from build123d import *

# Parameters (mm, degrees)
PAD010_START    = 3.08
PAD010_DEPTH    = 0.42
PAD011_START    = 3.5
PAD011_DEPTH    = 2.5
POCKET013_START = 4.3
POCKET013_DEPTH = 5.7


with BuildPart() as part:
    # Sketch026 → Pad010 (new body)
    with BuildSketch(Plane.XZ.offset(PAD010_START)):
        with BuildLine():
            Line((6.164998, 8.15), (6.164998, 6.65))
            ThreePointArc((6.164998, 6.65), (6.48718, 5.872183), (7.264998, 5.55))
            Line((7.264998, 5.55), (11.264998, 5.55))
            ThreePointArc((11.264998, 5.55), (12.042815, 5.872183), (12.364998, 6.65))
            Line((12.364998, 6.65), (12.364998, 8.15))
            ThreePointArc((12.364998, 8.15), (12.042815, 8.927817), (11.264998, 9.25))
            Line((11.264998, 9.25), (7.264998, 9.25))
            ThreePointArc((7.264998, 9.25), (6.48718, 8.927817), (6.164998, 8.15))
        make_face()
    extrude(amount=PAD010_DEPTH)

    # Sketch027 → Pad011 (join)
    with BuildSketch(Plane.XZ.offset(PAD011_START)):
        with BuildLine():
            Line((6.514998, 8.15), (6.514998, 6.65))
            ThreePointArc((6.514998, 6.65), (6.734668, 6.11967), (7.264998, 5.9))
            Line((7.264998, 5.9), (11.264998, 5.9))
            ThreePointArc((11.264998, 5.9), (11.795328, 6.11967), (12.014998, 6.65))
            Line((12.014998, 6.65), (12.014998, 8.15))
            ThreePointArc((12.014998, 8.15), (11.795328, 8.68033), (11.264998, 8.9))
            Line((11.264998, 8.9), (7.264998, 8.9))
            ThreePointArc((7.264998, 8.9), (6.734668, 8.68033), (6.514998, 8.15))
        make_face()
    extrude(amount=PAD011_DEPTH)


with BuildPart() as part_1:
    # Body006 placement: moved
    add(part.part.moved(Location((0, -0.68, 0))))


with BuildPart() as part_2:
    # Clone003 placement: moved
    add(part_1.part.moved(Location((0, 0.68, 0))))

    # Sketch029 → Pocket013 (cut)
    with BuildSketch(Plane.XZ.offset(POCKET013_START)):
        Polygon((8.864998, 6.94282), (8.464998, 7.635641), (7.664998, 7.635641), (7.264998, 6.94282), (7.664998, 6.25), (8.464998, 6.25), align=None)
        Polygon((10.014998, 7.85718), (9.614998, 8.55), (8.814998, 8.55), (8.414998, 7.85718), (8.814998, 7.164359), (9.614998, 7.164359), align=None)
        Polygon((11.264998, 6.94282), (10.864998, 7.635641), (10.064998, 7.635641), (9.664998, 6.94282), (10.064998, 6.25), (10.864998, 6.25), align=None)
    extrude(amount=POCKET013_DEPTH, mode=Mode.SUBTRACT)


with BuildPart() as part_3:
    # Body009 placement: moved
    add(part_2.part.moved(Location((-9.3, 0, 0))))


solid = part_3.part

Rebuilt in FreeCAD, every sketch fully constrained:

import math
import FreeCAD as App
import Part
import Sketcher
from FreeCAD import Vector
Q = App.Units.Quantity


def add_polygon(sketch, points):
    """Adds a closed chain of lines whose ends are joined by coincident constraints."""
    first, n = sketch.GeometryCount, len(points)
    for a, b in zip(points, points[1:] + points[:1]):
        sketch.addGeometry(Part.LineSegment(App.Vector(*a, 0), App.Vector(*b, 0)), False)
    for i in range(n):
        sketch.addConstraint(Sketcher.Constraint("Coincident", first + i, 2, first + (i + 1) % n, 1))

doc = App.newDocument("Part")
body = doc.addObject("PartDesign::Body", "Body")

# Sketch on XZ plane
sketch1 = body.newObject("Sketcher::SketchObject", "Sketch")
sketch1.AttachmentSupport = (doc.getObject("XZ_Plane"), [""])
sketch1.MapMode = "FlatFace"
sketch1.AttachmentOffset = App.Placement(Vector(0, 0, 3.08), App.Rotation())
sketch1.addGeometry([
    Part.LineSegment(Vector(6.2, 8.2, 0), Vector(6.2, 6.7, 0)),  # 0
    Part.ArcOfCircle(Part.Circle(Vector(7.3, 6.6, 0), Vector(0, 0, 1), 1.1), math.radians(180), math.radians(270)),  # 1
    Part.LineSegment(Vector(7.3, 5.5, 0), Vector(11.3, 5.5, 0)),  # 2
    Part.ArcOfCircle(Part.Circle(Vector(11.3, 6.7, 0), Vector(0, 0, 1), 1.1), math.radians(-90), math.radians(0)),  # 3
    Part.LineSegment(Vector(12.4, 6.7, 0), Vector(12.4, 8.2, 0)),  # 4
    Part.ArcOfCircle(Part.Circle(Vector(11.3, 8.1, 0), Vector(0, 0, 1), 1.1), math.radians(0), math.radians(90)),  # 5
    Part.LineSegment(Vector(11.3, 9.2, 0), Vector(7.3, 9.2, 0)),  # 6
    Part.ArcOfCircle(Part.Circle(Vector(7.3, 8.2, 0), Vector(0, 0, 1), 1.1), math.radians(90), math.radians(180)),  # 7
], False)
sketch1.addConstraint([
    Sketcher.Constraint("Tangent", 0, 2, 1, 1),
    Sketcher.Constraint("Tangent", 1, 2, 2, 1),
    Sketcher.Constraint("Tangent", 2, 2, 3, 1),
    Sketcher.Constraint("Tangent", 3, 2, 4, 1),
    Sketcher.Constraint("Tangent", 4, 2, 5, 1),
    Sketcher.Constraint("Tangent", 5, 2, 6, 1),
    Sketcher.Constraint("Tangent", 6, 2, 7, 1),
    Sketcher.Constraint("Tangent", 7, 2, 0, 1),
    Sketcher.Constraint("Vertical", 0),
    Sketcher.Constraint("Horizontal", 2),
    Sketcher.Constraint("Vertical", 4),
    Sketcher.Constraint("Horizontal", 6),
    Sketcher.Constraint("Equal", 1, 3),
    Sketcher.Constraint("Equal", 3, 5),
    Sketcher.Constraint("Equal", 5, 7),
    Sketcher.Constraint("Radius", 1, Q("1.1 mm")),
    Sketcher.Constraint("DistanceX", 2, 1, 2, 2, Q("4 mm")),
    Sketcher.Constraint("DistanceY", 0, 2, 0, 1, Q("1.5 mm")),
    Sketcher.Constraint("DistanceY", -1, 1, 1, 3, Q("6.65 mm")),
    Sketcher.Constraint("DistanceX", -1, 1, 1, 2, Q("7.264998 mm")),
])
pad1 = body.newObject("PartDesign::Pad", "Pad")
pad1.Profile = sketch1
pad1.Length = 0.42

# Sketch on XZ plane
sketch2 = body.newObject("Sketcher::SketchObject", "Sketch001")
sketch2.AttachmentSupport = (doc.getObject("XZ_Plane"), [""])
sketch2.MapMode = "FlatFace"
sketch2.AttachmentOffset = App.Placement(Vector(0, 0, 3.5), App.Rotation())
sketch2.addGeometry([
    Part.LineSegment(Vector(6.5, 8.2, 0), Vector(6.5, 6.7, 0)),  # 0
    Part.ArcOfCircle(Part.Circle(Vector(7.3, 6.7, 0), Vector(0, 0, 1), 0.8), math.radians(-180), math.radians(-90)),  # 1
    Part.LineSegment(Vector(7.3, 5.9, 0), Vector(11.3, 5.9, 0)),  # 2
    Part.ArcOfCircle(Part.Circle(Vector(11.3, 6.7, 0), Vector(0, 0, 1), 0.8), math.radians(-90), math.radians(0)),  # 3
    Part.LineSegment(Vector(12, 6.7, 0), Vector(12, 8.2, 0)),  # 4
    Part.ArcOfCircle(Part.Circle(Vector(11.3, 8.1, 0), Vector(0, 0, 1), 0.8), math.radians(0), math.radians(90)),  # 5
    Part.LineSegment(Vector(11.3, 8.9, 0), Vector(7.3, 8.9, 0)),  # 6
    Part.ArcOfCircle(Part.Circle(Vector(7.3, 8.1, 0), Vector(0, 0, 1), 0.8), math.radians(90), math.radians(180)),  # 7
], False)
sketch2.addConstraint([
    Sketcher.Constraint("Tangent", 0, 2, 1, 1),
    Sketcher.Constraint("Tangent", 1, 2, 2, 1),
    Sketcher.Constraint("Tangent", 2, 2, 3, 1),
    Sketcher.Constraint("Tangent", 3, 2, 4, 1),
    Sketcher.Constraint("Tangent", 4, 2, 5, 1),
    Sketcher.Constraint("Tangent", 5, 2, 6, 1),
    Sketcher.Constraint("Tangent", 6, 2, 7, 1),
    Sketcher.Constraint("Tangent", 7, 2, 0, 1),
    Sketcher.Constraint("Vertical", 0),
    Sketcher.Constraint("Horizontal", 2),
    Sketcher.Constraint("Vertical", 4),
    Sketcher.Constraint("Horizontal", 6),
    Sketcher.Constraint("Equal", 1, 3),
    Sketcher.Constraint("Equal", 3, 5),
    Sketcher.Constraint("Equal", 5, 7),
    Sketcher.Constraint("DistanceX", 2, 1, 2, 2, Q("4 mm")),
    Sketcher.Constraint("Radius", 1, Q("0.75 mm")),
    Sketcher.Constraint("DistanceY", 0, 2, 0, 1, Q("1.5 mm")),
    Sketcher.Constraint("DistanceY", -1, 1, 1, 2, Q("5.9 mm")),
    Sketcher.Constraint("DistanceX", -1, 1, 1, 3, Q("7.264998 mm")),
])
pad2 = body.newObject("PartDesign::Pad", "Pad001")
pad2.Profile = sketch2
pad2.Length = 2.5
body2 = doc.addObject("PartDesign::Body", "Body001")
doc.recompute()

body.Placement = App.Placement(Vector(0, -0.68, 0), App.Rotation(Vector(0, 0, 1), 0))
boolean = body2.newObject("PartDesign::Boolean", "Boolean")
boolean.Type = "Fuse"
boolean.addObjects([body])
body3 = doc.addObject("PartDesign::Body", "Body002")
doc.recompute()

body2.Placement = App.Placement(Vector(0, 0.68, 0), App.Rotation(Vector(0, 0, 1), 0))
boolean2 = body3.newObject("PartDesign::Boolean", "Boolean001")
boolean2.Type = "Fuse"
boolean2.addObjects([body2])

# Sketch on XZ plane
sketch3 = body3.newObject("Sketcher::SketchObject", "Sketch002")
sketch3.AttachmentSupport = (doc.getObject("XZ_Plane002"), [""])
sketch3.MapMode = "FlatFace"
sketch3.AttachmentOffset = App.Placement(Vector(0, 0, 4.3), App.Rotation())
add_polygon(sketch3, [(8.9, 6.9), (8.5, 7.6), (7.7, 7.6), (7.3, 6.9), (7.7, 6.2), (8.5, 6.2)])  # lines 0-5
add_polygon(sketch3, [(10, 7.9), (9.6, 8.6), (8.8, 8.6), (8.4, 7.9), (8.8, 7.2), (9.6, 7.2)])  # lines 6-11
add_polygon(sketch3, [(11.3, 6.9), (10.9, 7.6), (10.1, 7.6), (9.7, 6.9), (10.1, 6.2), (10.9, 6.2)])  # lines 12-17
sketch3.addConstraint([
    Sketcher.Constraint("Horizontal", 1),
    Sketcher.Constraint("Horizontal", 4),
    Sketcher.Constraint("Horizontal", 7),
    Sketcher.Constraint("Horizontal", 10),
    Sketcher.Constraint("Horizontal", 13),
    Sketcher.Constraint("Horizontal", 16),
    Sketcher.Constraint("Parallel", 0, 3),
    Sketcher.Constraint("Parallel", 2, 5),
    Sketcher.Constraint("Parallel", 3, 6),
    Sketcher.Constraint("Parallel", 5, 8),
    Sketcher.Constraint("Parallel", 6, 9),
    Sketcher.Constraint("Parallel", 8, 11),
    Sketcher.Constraint("Parallel", 9, 12),
    Sketcher.Constraint("Parallel", 11, 14),
    Sketcher.Constraint("Parallel", 12, 15),
    Sketcher.Constraint("Parallel", 14, 17),
    Sketcher.Constraint("Horizontal", 2, 2, 5, 2),
    Sketcher.Constraint("Horizontal", 8, 2, 11, 2),
    Sketcher.Constraint("Horizontal", 1, 2, 12, 2),
    Sketcher.Constraint("Horizontal", 5, 2, 14, 2),
    Sketcher.Constraint("Horizontal", 4, 2, 15, 2),
    Sketcher.Constraint("Horizontal", 14, 2, 17, 2),
    Sketcher.Constraint("Vertical", 1, 2, 3, 2),
    Sketcher.Constraint("Vertical", 0, 2, 4, 2),
    Sketcher.Constraint("Vertical", 7, 2, 9, 2),
    Sketcher.Constraint("Equal", 4, 7),
    Sketcher.Constraint("Equal", 10, 13),
    Sketcher.Constraint("Equal", 5, 6),
    Sketcher.Constraint("Angle", 3, Q("-59.999988 deg")),
    Sketcher.Constraint("DistanceX", 1, 2, 1, 1, Q("0.8 mm")),
    Sketcher.Constraint("DistanceX", 5, 2, 12, 2, Q("2 mm")),
    Sketcher.Constraint("Distance", 0, Q("0.800001 mm")),
    Sketcher.Constraint("DistanceY", 4, 2, 6, 2, Q("2.3 mm")),
    Sketcher.Constraint("DistanceY", -1, 1, 3, 2, Q("6.25 mm")),
    Sketcher.Constraint("DistanceX", 0, 2, 6, 2, Q("1.15 mm")),
    Sketcher.Constraint("DistanceX", -1, 1, 2, 2, Q("7.264998 mm")),
])
pocket1 = body3.newObject("PartDesign::Pocket", "Pocket")
pocket1.Profile = sketch3
pocket1.Length = 5.7
pocket1.Reversed = True
body4 = doc.addObject("PartDesign::Body", "Body003")
doc.recompute()

body3.Placement = App.Placement(Vector(-9.3, 0, 0), App.Rotation(Vector(0, 0, 1), 0))
boolean3 = body4.newObject("PartDesign::Boolean", "Boolean002")
boolean3.Type = "Fuse"
boolean3.addObjects([body3])

doc.recompute()
